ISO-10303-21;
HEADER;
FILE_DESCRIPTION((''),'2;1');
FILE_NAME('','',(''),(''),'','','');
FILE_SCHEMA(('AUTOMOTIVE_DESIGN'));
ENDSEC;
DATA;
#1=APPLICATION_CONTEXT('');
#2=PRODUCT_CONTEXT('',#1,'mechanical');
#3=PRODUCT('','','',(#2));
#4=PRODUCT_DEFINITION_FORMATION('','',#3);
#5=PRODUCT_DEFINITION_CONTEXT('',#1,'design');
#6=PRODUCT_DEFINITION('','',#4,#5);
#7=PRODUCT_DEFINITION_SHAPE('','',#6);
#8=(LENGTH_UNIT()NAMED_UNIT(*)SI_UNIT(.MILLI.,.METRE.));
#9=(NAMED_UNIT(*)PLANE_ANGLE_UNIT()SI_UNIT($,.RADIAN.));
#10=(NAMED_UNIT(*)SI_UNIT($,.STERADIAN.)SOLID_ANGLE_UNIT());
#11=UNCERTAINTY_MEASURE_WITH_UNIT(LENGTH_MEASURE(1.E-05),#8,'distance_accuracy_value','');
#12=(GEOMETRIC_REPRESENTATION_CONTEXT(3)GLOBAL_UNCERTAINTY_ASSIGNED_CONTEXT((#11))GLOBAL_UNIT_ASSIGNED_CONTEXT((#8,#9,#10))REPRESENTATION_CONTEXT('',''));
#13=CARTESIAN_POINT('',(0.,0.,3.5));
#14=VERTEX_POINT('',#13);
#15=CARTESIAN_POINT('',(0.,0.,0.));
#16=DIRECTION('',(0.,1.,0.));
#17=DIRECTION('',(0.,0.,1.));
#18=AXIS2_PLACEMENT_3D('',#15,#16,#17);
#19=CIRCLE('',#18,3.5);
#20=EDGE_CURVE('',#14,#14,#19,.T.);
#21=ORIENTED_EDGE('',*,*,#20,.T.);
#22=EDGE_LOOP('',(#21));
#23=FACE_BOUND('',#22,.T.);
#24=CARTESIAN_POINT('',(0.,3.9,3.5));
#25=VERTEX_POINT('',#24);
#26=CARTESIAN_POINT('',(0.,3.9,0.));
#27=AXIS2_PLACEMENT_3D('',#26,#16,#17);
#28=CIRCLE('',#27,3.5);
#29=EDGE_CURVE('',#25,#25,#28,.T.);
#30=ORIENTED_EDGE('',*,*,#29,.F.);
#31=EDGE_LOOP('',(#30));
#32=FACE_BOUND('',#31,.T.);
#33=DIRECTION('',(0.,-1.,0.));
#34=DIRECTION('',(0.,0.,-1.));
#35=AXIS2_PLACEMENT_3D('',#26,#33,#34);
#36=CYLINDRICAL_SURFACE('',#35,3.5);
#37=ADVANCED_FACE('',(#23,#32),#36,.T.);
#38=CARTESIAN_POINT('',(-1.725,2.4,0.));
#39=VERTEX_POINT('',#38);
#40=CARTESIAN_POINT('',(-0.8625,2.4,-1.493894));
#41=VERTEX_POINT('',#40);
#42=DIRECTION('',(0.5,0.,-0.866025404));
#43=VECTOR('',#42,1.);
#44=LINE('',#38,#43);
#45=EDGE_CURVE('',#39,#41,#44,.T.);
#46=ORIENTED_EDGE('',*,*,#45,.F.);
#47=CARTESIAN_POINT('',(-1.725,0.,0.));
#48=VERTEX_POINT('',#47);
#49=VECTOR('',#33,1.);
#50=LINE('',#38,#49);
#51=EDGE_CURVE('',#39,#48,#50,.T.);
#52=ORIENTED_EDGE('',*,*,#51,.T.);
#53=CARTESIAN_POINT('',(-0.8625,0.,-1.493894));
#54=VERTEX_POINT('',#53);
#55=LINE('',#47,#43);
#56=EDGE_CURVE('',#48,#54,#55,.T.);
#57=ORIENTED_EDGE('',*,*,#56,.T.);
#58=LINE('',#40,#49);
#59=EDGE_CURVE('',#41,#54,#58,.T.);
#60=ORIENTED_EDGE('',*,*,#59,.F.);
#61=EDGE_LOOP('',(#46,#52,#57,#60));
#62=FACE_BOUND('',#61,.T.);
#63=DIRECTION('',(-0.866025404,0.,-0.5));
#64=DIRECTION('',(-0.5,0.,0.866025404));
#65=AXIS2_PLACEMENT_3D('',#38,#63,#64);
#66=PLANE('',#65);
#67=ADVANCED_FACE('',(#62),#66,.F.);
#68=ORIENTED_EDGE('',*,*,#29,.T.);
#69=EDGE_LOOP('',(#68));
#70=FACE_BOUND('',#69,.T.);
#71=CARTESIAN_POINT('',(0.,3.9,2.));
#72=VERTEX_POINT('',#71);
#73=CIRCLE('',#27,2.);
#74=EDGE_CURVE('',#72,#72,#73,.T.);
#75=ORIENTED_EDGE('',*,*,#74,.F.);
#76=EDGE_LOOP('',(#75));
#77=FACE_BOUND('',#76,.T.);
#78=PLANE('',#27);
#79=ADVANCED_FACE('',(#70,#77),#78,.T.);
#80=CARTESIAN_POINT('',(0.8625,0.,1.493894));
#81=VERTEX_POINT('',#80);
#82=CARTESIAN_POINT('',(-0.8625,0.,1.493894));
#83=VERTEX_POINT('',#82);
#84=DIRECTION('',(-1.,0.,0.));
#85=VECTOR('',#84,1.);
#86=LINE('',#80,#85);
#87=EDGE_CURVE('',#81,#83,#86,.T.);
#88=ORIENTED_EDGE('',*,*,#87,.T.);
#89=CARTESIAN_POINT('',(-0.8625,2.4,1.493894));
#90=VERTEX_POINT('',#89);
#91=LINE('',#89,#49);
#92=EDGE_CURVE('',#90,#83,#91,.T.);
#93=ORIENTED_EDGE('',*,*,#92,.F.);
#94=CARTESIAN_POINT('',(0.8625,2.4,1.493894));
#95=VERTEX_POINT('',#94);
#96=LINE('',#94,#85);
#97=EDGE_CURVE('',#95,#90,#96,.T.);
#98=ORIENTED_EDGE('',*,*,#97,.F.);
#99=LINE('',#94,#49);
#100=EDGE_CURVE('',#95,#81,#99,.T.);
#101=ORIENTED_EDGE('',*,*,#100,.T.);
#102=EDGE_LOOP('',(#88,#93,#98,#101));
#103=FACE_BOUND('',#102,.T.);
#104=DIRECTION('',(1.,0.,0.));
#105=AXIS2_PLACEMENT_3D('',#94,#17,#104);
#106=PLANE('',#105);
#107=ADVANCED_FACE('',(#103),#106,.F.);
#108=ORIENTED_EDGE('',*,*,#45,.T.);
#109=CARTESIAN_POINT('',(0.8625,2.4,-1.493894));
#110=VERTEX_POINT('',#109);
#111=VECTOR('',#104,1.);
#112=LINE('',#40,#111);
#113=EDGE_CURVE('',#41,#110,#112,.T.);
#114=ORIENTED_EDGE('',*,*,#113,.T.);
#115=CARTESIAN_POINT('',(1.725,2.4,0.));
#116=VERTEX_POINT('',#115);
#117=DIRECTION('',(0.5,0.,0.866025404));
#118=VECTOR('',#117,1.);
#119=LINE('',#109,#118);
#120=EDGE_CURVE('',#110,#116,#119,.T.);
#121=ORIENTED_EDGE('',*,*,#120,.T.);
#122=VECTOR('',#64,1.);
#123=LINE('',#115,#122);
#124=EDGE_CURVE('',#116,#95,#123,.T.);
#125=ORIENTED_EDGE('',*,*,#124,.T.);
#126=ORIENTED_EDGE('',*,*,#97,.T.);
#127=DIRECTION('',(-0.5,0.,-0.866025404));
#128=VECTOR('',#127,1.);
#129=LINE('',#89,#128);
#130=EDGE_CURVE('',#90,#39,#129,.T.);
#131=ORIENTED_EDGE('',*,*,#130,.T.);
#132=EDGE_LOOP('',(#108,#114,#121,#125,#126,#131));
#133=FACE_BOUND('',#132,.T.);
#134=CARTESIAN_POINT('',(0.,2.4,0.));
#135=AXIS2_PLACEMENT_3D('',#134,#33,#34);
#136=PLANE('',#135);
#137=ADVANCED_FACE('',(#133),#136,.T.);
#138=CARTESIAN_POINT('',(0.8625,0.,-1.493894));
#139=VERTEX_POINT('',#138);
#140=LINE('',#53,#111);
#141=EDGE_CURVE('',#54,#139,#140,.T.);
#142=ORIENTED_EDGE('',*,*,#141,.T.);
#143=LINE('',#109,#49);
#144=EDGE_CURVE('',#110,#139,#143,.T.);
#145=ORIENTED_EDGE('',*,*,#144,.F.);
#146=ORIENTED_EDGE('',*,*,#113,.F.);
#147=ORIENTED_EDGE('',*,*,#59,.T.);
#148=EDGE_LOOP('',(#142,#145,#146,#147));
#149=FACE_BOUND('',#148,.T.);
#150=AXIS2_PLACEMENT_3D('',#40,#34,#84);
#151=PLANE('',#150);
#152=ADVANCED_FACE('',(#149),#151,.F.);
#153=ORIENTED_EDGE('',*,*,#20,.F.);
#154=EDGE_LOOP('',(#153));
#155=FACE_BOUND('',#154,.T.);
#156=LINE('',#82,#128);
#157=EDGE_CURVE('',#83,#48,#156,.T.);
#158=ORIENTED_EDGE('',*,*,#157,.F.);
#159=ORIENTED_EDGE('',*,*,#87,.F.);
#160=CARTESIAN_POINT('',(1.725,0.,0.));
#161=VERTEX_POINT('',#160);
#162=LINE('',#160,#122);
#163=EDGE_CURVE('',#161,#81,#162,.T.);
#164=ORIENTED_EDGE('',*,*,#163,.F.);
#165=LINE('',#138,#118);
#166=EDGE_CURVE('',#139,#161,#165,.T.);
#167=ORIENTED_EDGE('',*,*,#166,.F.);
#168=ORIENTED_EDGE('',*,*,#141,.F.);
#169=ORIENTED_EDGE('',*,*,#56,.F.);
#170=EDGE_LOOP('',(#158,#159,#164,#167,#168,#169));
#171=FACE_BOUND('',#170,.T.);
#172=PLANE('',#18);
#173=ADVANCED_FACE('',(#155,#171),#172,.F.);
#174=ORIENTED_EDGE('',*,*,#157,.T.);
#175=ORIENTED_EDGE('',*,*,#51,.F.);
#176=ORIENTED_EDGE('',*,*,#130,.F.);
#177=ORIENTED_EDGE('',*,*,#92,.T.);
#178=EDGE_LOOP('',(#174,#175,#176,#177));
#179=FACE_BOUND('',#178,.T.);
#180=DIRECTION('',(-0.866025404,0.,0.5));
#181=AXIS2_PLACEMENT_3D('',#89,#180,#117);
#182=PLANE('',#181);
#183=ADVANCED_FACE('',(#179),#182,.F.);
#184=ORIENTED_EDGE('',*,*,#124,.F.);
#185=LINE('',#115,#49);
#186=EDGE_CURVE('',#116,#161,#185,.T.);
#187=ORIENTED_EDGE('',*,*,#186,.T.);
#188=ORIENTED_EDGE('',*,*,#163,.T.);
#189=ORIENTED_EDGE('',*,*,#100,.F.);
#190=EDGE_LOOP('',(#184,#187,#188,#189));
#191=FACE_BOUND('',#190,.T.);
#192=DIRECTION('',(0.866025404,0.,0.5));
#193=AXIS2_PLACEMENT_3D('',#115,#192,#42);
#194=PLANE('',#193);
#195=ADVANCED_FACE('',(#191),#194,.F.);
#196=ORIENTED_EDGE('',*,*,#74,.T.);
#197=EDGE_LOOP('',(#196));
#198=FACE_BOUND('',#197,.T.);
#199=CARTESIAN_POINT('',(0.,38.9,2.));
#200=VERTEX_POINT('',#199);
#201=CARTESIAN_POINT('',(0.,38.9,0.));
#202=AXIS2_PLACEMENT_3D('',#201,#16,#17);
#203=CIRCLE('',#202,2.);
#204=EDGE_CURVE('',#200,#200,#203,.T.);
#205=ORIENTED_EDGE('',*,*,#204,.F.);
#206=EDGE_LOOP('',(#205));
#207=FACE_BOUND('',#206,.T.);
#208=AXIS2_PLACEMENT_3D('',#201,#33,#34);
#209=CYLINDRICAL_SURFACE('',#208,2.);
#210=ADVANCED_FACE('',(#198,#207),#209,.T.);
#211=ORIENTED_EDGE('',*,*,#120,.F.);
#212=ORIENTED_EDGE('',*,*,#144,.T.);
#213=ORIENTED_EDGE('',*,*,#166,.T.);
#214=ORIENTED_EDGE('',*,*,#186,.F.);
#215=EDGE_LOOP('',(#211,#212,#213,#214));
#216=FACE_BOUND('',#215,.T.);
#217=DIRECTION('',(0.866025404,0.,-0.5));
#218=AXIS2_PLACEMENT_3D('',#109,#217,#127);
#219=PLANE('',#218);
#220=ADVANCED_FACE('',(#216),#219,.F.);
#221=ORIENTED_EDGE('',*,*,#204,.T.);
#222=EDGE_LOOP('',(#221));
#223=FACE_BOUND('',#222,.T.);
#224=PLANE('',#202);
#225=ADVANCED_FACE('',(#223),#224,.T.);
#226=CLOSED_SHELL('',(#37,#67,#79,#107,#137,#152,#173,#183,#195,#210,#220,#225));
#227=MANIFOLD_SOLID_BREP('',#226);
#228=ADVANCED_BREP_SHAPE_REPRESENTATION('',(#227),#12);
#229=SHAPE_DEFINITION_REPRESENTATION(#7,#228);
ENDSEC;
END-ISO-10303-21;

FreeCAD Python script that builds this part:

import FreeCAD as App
import Part
import Sketcher

V = App.Vector
Q = App.Units.Quantity


def add_polygon(sketch, points):
    """Adds a closed chain of lines whose ends are joined by coincident constraints."""
    first, n = sketch.GeometryCount, len(points)
    for a, b in zip(points, points[1:] + points[:1]):
        sketch.addGeometry(Part.LineSegment(App.Vector(*a, 0), App.Vector(*b, 0)), False)
    for i in range(n):
        sketch.addConstraint(Sketcher.Constraint("Coincident", first + i, 2, first + (i + 1) % n, 1))

doc = App.newDocument("Part")
params = doc.addObject("Spreadsheet::Sheet", "Params")
for row, (alias, value) in enumerate([
    ("sketch1_diameter", "7 mm"),
    ("pad1_length", "3.9 mm"),
    ("sketch2_diameter", "4 mm"),
    ("pad2_length", "35 mm"),
    ("pocket1_length", "2.4 mm"),
], start=1):
    params.set(f"A{row}", alias)
    params.set(f"B{row}", "=" + value)
    params.setAlias(f"B{row}", alias)

body = doc.addObject("PartDesign::Body", "Body")

sketch1 = body.newObject("Sketcher::SketchObject", "Sketch")
sketch1.AttachmentSupport = (doc.getObject("XZ_Plane"), [""])
sketch1.MapMode = "FlatFace"
sketch1.addGeometry(Part.Circle(V(0, 0, 0), V(0, 0, 1), 3.5), False)
sketch1.addConstraint([
    Sketcher.Constraint("Coincident", 0, 3, -1, 1),
    Sketcher.Constraint("Diameter", 0, 7.0),
])
sketch1.setExpression("Constraints[1]", "Params.sketch1_diameter")
pad1 = body.newObject("PartDesign::Pad", "Pad")
pad1.Profile = sketch1
pad1.setExpression("Length", "Params.pad1_length")
pad1.Reversed = True

sketch2 = body.newObject("Sketcher::SketchObject", "Sketch001")
sketch2.AttachmentSupport = (doc.getObject("XZ_Plane"), [""])
sketch2.MapMode = "FlatFace"
sketch2.AttachmentOffset = App.Placement(V(0, 0, -3.9), App.Rotation())
sketch2.addGeometry(Part.Circle(V(0, 0, 0), V(0, 0, 1), 2), False)
sketch2.addConstraint([
    Sketcher.Constraint("Coincident", 0, 3, -1, 1),
    Sketcher.Constraint("Diameter", 0, 4.0),
])
sketch2.setExpression("Constraints[1]", "Params.sketch2_diameter")
pad2 = body.newObject("PartDesign::Pad", "Pad001")
pad2.Profile = sketch2
pad2.setExpression("Length", "Params.pad2_length")
pad2.Reversed = True

sketch3 = body.newObject("Sketcher::SketchObject", "Sketch002")
sketch3.AttachmentSupport = (doc.getObject("XZ_Plane"), [""])
sketch3.MapMode = "FlatFace"
add_polygon(sketch3, [(1.7, 0), (0.9, 1.5), (-0.9, 1.5), (-1.7, 0), (-0.9, -1.5), (0.9, -1.5)])
sketch3.addConstraint([
    Sketcher.Constraint("Horizontal", 1),
    Sketcher.Constraint("Horizontal", 4),
    Sketcher.Constraint("Symmetric", 0, 2, 3, 2, -1, 1),
    Sketcher.Constraint("Symmetric", 2, 2, 5, 2, -1, 1),
    Sketcher.Constraint("PointOnObject", 2, 2, -1),
    Sketcher.Constraint("Parallel", 2, 5),
    Sketcher.Constraint("Vertical", 1, 2, 3, 2),
    Sketcher.Constraint("Angle", 0, Q("120 deg")),
    Sketcher.Constraint("DistanceX", 1, 2, 1, 1, 1.725),
    Sketcher.Constraint("DistanceX", 2, 2, 5, 2, 3.45),
])
pocket1 = body.newObject("PartDesign::Pocket", "Pocket")
pocket1.Profile = sketch3
pocket1.setExpression("Length", "Params.pocket1_length")

doc.recompute()
